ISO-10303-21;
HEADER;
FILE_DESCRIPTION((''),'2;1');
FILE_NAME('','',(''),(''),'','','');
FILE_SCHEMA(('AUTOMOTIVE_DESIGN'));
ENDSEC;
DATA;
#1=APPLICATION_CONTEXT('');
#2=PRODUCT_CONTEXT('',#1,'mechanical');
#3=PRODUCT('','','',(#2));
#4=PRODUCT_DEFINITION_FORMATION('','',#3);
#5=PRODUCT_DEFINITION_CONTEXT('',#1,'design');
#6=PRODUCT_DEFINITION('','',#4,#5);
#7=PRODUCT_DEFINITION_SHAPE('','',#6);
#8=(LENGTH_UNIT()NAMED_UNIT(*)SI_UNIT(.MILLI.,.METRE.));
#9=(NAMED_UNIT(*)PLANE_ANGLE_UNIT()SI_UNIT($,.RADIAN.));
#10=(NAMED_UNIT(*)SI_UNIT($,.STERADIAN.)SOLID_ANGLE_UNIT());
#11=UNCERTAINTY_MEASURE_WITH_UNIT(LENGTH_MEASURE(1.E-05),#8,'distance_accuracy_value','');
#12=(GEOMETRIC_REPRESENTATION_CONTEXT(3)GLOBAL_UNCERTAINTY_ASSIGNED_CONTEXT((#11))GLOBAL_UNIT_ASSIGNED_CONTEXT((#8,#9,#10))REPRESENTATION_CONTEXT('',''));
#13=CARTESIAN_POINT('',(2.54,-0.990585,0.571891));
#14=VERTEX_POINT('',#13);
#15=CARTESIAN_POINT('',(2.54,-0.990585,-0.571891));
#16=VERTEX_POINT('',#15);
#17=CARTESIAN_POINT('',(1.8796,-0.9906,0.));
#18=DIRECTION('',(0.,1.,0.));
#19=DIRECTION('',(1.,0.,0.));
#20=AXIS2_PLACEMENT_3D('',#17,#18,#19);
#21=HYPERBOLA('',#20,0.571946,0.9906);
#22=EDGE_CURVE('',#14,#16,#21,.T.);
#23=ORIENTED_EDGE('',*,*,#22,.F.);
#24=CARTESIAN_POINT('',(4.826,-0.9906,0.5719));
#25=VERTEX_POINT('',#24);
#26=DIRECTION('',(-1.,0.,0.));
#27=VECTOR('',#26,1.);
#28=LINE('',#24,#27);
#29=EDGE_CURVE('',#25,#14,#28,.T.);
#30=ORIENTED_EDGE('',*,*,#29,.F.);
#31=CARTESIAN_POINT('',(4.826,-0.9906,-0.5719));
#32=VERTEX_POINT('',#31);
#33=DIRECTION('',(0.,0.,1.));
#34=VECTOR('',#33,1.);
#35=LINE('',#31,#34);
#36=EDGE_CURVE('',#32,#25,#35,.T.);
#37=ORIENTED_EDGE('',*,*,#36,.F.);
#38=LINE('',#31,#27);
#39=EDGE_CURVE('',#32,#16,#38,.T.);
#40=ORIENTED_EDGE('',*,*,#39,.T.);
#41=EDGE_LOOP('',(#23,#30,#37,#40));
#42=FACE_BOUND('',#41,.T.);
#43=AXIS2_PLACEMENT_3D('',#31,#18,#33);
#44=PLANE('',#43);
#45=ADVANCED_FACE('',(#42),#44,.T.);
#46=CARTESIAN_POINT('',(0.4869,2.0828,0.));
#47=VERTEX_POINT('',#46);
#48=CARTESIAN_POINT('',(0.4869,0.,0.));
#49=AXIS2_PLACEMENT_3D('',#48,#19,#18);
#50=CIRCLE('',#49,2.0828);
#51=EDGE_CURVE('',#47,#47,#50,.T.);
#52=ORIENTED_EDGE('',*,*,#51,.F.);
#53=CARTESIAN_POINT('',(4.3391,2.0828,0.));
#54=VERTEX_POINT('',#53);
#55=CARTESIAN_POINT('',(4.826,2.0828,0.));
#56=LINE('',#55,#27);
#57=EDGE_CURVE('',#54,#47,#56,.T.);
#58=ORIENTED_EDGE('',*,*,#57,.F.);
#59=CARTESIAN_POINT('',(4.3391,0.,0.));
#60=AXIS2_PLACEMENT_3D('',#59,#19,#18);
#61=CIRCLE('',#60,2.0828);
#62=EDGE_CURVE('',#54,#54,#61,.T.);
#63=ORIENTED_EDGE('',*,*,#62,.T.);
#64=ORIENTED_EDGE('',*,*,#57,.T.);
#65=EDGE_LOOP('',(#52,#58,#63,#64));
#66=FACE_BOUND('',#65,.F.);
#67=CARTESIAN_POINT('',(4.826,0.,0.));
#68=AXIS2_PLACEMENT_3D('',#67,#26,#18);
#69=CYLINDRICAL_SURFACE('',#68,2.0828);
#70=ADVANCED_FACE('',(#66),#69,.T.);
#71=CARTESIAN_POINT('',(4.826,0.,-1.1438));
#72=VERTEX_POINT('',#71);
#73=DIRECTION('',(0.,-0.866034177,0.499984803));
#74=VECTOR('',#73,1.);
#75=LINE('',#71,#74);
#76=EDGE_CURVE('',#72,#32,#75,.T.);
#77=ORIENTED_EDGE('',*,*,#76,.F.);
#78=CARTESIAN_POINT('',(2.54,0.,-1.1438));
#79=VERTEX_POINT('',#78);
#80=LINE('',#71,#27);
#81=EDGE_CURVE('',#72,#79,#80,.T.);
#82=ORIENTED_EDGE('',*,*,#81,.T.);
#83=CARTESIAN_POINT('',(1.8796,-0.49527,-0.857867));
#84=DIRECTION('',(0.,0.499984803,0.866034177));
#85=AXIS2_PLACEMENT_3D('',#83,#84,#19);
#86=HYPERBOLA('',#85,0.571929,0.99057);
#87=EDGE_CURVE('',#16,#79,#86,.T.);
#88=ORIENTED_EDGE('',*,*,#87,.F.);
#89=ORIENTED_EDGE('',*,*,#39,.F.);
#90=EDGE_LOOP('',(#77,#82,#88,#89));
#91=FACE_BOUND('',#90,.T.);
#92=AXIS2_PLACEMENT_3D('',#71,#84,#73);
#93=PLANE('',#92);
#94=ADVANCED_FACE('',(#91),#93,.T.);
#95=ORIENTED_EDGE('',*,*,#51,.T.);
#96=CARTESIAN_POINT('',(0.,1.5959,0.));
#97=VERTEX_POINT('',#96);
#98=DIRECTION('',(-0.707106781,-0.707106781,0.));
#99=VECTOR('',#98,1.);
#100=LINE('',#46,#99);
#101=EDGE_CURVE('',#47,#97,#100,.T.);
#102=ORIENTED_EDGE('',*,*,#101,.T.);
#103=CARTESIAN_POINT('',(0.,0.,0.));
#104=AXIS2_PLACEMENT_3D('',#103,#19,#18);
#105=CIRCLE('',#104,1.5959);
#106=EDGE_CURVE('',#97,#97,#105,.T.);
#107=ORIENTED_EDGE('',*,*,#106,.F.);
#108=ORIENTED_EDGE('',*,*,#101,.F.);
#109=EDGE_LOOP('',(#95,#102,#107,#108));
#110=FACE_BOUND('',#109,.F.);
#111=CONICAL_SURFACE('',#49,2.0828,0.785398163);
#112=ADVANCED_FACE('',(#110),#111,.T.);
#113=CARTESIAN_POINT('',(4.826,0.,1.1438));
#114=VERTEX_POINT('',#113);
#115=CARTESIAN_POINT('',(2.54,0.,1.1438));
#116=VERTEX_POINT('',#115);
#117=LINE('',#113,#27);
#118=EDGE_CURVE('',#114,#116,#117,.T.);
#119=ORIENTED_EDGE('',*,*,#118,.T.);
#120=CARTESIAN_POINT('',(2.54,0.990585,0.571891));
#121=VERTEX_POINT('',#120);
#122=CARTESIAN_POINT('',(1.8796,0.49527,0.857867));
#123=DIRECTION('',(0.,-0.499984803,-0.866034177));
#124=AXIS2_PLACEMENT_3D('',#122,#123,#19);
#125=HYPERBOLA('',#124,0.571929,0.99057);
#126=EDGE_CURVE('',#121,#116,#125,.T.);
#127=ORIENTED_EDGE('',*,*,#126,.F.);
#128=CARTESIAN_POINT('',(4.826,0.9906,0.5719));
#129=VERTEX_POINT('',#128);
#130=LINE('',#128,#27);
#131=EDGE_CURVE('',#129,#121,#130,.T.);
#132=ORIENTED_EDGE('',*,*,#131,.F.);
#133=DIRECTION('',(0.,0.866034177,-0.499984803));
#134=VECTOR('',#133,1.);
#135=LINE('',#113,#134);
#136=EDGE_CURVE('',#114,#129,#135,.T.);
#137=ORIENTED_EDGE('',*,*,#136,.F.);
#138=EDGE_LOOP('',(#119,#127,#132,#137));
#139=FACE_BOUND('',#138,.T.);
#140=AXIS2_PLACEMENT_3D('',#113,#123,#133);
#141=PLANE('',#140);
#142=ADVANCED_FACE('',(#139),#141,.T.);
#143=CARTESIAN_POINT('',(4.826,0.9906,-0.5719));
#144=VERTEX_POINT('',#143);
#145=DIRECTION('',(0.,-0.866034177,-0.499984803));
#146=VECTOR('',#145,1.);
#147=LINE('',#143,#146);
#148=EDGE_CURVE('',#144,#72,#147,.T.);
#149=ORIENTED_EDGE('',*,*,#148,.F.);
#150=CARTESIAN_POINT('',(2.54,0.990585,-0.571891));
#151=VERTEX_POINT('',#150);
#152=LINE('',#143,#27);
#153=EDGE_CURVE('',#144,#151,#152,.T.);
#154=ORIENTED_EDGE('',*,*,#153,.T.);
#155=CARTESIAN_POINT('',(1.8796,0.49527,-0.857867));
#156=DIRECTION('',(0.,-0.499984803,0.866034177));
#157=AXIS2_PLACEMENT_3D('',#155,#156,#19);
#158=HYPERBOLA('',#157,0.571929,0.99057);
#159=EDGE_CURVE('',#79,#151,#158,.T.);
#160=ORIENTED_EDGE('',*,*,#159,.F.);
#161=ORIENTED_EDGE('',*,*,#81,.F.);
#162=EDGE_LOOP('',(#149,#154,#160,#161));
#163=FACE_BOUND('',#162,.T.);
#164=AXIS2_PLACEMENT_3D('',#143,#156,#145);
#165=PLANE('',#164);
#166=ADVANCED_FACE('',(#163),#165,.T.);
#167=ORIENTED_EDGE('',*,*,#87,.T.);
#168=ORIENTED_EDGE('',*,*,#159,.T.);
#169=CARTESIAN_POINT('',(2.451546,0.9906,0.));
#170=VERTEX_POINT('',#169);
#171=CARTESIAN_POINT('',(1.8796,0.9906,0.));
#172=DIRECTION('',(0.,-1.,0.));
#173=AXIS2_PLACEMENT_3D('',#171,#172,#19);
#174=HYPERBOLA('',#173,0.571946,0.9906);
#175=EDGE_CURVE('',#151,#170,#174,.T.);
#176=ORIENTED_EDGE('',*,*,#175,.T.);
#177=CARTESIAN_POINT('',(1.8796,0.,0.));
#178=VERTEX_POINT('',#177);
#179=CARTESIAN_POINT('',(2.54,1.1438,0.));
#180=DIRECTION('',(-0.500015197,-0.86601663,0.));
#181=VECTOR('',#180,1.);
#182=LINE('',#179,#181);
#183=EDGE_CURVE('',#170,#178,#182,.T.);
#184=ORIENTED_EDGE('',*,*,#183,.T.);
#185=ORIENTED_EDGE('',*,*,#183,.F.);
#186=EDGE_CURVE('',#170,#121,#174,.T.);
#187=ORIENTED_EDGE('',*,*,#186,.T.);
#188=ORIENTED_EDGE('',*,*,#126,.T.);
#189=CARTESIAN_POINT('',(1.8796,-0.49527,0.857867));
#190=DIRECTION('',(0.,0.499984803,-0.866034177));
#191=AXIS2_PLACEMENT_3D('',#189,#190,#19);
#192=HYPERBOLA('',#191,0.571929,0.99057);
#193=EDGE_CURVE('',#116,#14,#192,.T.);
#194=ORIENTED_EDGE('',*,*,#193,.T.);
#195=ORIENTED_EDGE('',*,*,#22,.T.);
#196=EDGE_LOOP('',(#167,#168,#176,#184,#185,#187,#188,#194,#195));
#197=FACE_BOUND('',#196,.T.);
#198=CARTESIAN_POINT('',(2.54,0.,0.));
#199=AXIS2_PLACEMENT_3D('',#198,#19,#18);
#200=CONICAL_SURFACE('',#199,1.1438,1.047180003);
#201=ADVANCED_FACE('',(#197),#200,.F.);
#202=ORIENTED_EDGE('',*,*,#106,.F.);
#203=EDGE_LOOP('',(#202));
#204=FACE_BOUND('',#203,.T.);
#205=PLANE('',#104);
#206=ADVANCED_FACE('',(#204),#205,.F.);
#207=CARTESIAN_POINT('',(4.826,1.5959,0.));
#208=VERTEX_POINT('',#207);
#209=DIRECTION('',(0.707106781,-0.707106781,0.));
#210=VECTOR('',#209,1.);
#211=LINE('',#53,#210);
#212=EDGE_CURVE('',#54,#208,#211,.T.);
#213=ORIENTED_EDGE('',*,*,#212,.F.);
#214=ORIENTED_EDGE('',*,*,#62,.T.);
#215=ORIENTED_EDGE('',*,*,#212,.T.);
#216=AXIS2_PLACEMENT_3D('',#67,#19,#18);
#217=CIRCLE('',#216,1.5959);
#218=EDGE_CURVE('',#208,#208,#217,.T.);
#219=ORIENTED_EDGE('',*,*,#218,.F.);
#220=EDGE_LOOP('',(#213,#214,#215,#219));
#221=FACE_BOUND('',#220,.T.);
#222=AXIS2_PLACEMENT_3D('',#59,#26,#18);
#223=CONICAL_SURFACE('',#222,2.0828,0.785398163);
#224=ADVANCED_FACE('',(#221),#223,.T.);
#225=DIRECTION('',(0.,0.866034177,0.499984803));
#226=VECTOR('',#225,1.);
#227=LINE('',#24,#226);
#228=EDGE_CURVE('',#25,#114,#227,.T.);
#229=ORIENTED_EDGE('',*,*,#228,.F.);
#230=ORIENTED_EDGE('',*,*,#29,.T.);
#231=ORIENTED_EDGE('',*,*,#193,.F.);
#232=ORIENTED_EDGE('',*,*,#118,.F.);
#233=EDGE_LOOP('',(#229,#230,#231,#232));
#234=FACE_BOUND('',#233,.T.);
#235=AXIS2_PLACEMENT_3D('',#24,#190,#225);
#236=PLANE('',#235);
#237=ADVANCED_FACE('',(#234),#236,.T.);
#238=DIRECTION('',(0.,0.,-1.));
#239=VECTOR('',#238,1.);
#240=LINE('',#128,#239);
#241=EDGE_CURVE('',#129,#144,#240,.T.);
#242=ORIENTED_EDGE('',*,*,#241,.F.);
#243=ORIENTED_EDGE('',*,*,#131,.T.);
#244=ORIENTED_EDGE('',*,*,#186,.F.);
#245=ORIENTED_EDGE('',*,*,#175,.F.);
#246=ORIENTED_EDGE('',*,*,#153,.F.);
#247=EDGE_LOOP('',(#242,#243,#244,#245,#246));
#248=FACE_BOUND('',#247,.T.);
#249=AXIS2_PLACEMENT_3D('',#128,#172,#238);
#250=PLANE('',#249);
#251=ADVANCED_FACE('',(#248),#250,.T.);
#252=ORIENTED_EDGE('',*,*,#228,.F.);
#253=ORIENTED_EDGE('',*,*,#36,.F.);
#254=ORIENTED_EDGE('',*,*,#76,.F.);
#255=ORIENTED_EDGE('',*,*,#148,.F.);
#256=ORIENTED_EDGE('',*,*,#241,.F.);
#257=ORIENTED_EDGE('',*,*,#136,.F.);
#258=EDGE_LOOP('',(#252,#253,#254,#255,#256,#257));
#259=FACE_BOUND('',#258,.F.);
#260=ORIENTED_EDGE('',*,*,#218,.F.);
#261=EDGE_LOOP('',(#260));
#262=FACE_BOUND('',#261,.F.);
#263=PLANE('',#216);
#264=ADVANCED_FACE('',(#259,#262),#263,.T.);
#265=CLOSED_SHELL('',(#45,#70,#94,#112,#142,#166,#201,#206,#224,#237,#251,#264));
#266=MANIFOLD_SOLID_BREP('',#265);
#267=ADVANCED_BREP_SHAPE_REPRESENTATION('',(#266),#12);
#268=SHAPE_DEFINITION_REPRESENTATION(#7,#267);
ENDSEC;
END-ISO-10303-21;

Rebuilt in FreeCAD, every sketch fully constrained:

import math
import FreeCAD as App
import Part
import Sketcher
Q = App.Units.Quantity


def edges_at(feature, points):
    """Names of the edges that pass closest to the given points."""
    edges = feature.Shape.Edges
    near = lambda p: min(range(len(edges)), key=lambda i: edges[i].distToShape(Part.Vertex(*p))[0])
    return sorted({f"Edge{near(p) + 1}" for p in points})

doc = App.newDocument("Part")
params = doc.addObject("Spreadsheet::Sheet", "Params")
for row, (alias, value) in enumerate([
    ("sketch1_width", "0.09 in"),
    ("sketch1_width2", "0.19 in"),
    ("sketch1_width3", "0.074 in"),
    ("sketch1_height", "0.082 in"),
    ("revolution_angle", "360 deg"),
    ("chamfer_size", "0.4869 mm"),
    ("chamfer2_size", "0.4869 mm"),
], start=1):
    params.set(f"A{row}", alias)
    params.set(f"B{row}", "=" + value)
    params.setAlias(f"B{row}", alias)

body = doc.addObject("PartDesign::Body", "Body")

# Sketch on XY plane
sketch1 = body.newObject("Sketcher::SketchObject", "Sketch")
sketch1.AttachmentSupport = (doc.getObject("XY_Plane"), [""])
sketch1.MapMode = "FlatFace"
sketch1.addGeometry([
    Part.LineSegment(App.Vector(0, 2.0828, 0), App.Vector(0, 0, 0)),  # 0
    Part.LineSegment(App.Vector(0, 0, 0), App.Vector(1.8796, 0, 0)),  # 1
    Part.LineSegment(App.Vector(1.8796, 0, 0), App.Vector(2.54, 1.1438, 0)),  # 2
    Part.LineSegment(App.Vector(2.54, 1.1438, 0), App.Vector(4.826, 1.1438, 0)),  # 3
    Part.LineSegment(App.Vector(4.826, 1.1438, 0), App.Vector(4.826, 2.0828, 0)),  # 4
    Part.LineSegment(App.Vector(4.826, 2.0828, 0), App.Vector(0, 2.0828, 0)),  # 5
], False)
sketch1.addConstraint([
    Sketcher.Constraint("Coincident", 0, 2, 1, 1),
    Sketcher.Constraint("Coincident", 1, 2, 2, 1),
    Sketcher.Constraint("Coincident", 2, 2, 3, 1),
    Sketcher.Constraint("Coincident", 3, 2, 4, 1),
    Sketcher.Constraint("Coincident", 4, 2, 5, 1),
    Sketcher.Constraint("Coincident", 5, 2, 0, 1),
    Sketcher.Constraint("Vertical", 0),
    Sketcher.Constraint("Horizontal", 1),
    Sketcher.Constraint("Horizontal", 3),
    Sketcher.Constraint("Vertical", 4),
    Sketcher.Constraint("Horizontal", 5),
    Sketcher.Constraint("Coincident", 0, 2, -1, 1),
    Sketcher.Constraint("DistanceX", 3, 1, 3, 2, Q("0.09 in")),
    Sketcher.Constraint("DistanceX", 5, 2, 5, 1, Q("0.19 in")),
    Sketcher.Constraint("Angle", 2, Q("59.999 deg")),
    Sketcher.Constraint("DistanceX", 1, 1, 1, 2, Q("0.074 in")),
    Sketcher.Constraint("DistanceY", 0, 2, 0, 1, Q("0.082 in")),
])
sketch1.setExpression("Constraints[12]", "Params.sketch1_width")
sketch1.setExpression("Constraints[13]", "Params.sketch1_width2")
sketch1.setExpression("Constraints[15]", "Params.sketch1_width3")
sketch1.setExpression("Constraints[16]", "Params.sketch1_height")
revolution = body.newObject("PartDesign::Revolution", "Revolution")
revolution.Profile = sketch1
revolution.ReferenceAxis = (sketch1, ["H_Axis"])
revolution.setExpression("Angle", "Params.revolution_angle")
doc.recompute()

chamfer = body.newObject("PartDesign::Chamfer", "Chamfer")
chamfer.Base = (revolution, edges_at(revolution, [(4.826, -2.083, 0)]))
chamfer.setExpression("Size", "Params.chamfer_size")

# Sketch on YZ plane
sketch2 = body.newObject("Sketcher::SketchObject", "Sketch001")
sketch2.AttachmentSupport = (doc.getObject("YZ_Plane"), [""])
sketch2.MapMode = "FlatFace"
sketch2.AttachmentOffset = App.Placement(App.Vector(0, 0, 0.19 * 25.4), App.Rotation())
sketch2.addGeometry([
    Part.LineSegment(App.Vector(0.9906, -0.5719, 0), App.Vector(0, -1.1438, 0)),  # 0
    Part.ArcOfCircle(Part.Circle(App.Vector(0, 0, 0), App.Vector(0, 0, 1), 1.1438), math.radians(-90), math.radians(-29.998995)),  # 1
    Part.ArcOfCircle(Part.Circle(App.Vector(0, 0, 0), App.Vector(0, 0, 1), 1.1438), math.radians(-150.001005), math.radians(-90)),  # 2
    Part.LineSegment(App.Vector(0, -1.1438, 0), App.Vector(-0.9906, -0.5719, 0)),  # 3
    Part.LineSegment(App.Vector(0.9906, 0.5719, 0), App.Vector(0.9906, -0.5719, 0)),  # 4
    Part.ArcOfCircle(Part.Circle(App.Vector(0, 0, 0), App.Vector(0, 0, 1), 1.1438), math.radians(-29.998995), math.radians(29.998995)),  # 5
    Part.ArcOfCircle(Part.Circle(App.Vector(0, 0, 0), App.Vector(0, 0, 1), 1.1438), math.radians(150.001005), math.radians(209.998995)),  # 6
    Part.LineSegment(App.Vector(-0.9906, 0.5719, 0), App.Vector(-0.9906, -0.5719, 0)),  # 7
    Part.LineSegment(App.Vector(0, 1.1438, 0), App.Vector(0.9906, 0.5719, 0)),  # 8
    Part.ArcOfCircle(Part.Circle(App.Vector(0, 0, 0), App.Vector(0, 0, 1), 1.1438), math.radians(29.998995), math.radians(90)),  # 9
    Part.ArcOfCircle(Part.Circle(App.Vector(0, 0, 0), App.Vector(0, 0, 1), 1.1438), math.radians(90), math.radians(150.001005)),  # 10
    Part.LineSegment(App.Vector(0, 1.1438, 0), App.Vector(-0.9906, 0.5719, 0)),  # 11
], False)
sketch2.addConstraint([
    Sketcher.Constraint("Coincident", 0, 1, 1, 2),
    Sketcher.Constraint("Coincident", 1, 1, 0, 2),
    Sketcher.Constraint("Coincident", 2, 1, 3, 2),
    Sketcher.Constraint("Coincident", 3, 1, 2, 2),
    Sketcher.Constraint("Coincident", 4, 1, 5, 2),
    Sketcher.Constraint("Coincident", 5, 1, 4, 2),
    Sketcher.Constraint("Coincident", 6, 1, 7, 1),
    Sketcher.Constraint("Coincident", 7, 2, 6, 2),
    Sketcher.Constraint("Coincident", 8, 1, 9, 2),
    Sketcher.Constraint("Coincident", 9, 1, 8, 2),
    Sketcher.Constraint("Coincident", 10, 1, 11, 1),
    Sketcher.Constraint("Coincident", 11, 2, 10, 2),
    Sketcher.Constraint("Vertical", 4),
    Sketcher.Constraint("Vertical", 7),
    Sketcher.Constraint("Coincident", 1, 3, -1, 1),
    Sketcher.Constraint("Coincident", 2, 3, -1, 1),
    Sketcher.Constraint("Coincident", 5, 3, -1, 1),
    Sketcher.Constraint("Coincident", 6, 3, -1, 1),
    Sketcher.Constraint("Coincident", 9, 3, -1, 1),
    Sketcher.Constraint("Coincident", 10, 3, -1, 1),
    Sketcher.Constraint("Coincident", 3, 1, 1, 1),
    Sketcher.Constraint("Coincident", 5, 1, 0, 1),
    Sketcher.Constraint("Coincident", 7, 2, 2, 1),
    Sketcher.Constraint("Coincident", 9, 1, 4, 1),
    Sketcher.Constraint("Coincident", 10, 1, 8, 1),
    Sketcher.Constraint("PointOnObject", 1, 1, -2),
    Sketcher.Constraint("PointOnObject", 8, 1, -2),
    Sketcher.Constraint("Parallel", 3, 8),
    Sketcher.Constraint("Parallel", 0, 11),
    Sketcher.Constraint("Angle", 0, Q("-150.001 deg")),
    Sketcher.Constraint("Radius", 1, 1.1438),
])
pad1 = body.newObject("PartDesign::Pad", "Pad")
pad1.Profile = sketch2
pad1.Type = "UpToFirst"
pad1.Reversed = True
doc.recompute()

chamfer2 = body.newObject("PartDesign::Chamfer", "Chamfer001")
chamfer2.Base = (pad1, edges_at(pad1, [(0, -2.083, 0)]))
chamfer2.setExpression("Size", "Params.chamfer2_size")

doc.recompute()
